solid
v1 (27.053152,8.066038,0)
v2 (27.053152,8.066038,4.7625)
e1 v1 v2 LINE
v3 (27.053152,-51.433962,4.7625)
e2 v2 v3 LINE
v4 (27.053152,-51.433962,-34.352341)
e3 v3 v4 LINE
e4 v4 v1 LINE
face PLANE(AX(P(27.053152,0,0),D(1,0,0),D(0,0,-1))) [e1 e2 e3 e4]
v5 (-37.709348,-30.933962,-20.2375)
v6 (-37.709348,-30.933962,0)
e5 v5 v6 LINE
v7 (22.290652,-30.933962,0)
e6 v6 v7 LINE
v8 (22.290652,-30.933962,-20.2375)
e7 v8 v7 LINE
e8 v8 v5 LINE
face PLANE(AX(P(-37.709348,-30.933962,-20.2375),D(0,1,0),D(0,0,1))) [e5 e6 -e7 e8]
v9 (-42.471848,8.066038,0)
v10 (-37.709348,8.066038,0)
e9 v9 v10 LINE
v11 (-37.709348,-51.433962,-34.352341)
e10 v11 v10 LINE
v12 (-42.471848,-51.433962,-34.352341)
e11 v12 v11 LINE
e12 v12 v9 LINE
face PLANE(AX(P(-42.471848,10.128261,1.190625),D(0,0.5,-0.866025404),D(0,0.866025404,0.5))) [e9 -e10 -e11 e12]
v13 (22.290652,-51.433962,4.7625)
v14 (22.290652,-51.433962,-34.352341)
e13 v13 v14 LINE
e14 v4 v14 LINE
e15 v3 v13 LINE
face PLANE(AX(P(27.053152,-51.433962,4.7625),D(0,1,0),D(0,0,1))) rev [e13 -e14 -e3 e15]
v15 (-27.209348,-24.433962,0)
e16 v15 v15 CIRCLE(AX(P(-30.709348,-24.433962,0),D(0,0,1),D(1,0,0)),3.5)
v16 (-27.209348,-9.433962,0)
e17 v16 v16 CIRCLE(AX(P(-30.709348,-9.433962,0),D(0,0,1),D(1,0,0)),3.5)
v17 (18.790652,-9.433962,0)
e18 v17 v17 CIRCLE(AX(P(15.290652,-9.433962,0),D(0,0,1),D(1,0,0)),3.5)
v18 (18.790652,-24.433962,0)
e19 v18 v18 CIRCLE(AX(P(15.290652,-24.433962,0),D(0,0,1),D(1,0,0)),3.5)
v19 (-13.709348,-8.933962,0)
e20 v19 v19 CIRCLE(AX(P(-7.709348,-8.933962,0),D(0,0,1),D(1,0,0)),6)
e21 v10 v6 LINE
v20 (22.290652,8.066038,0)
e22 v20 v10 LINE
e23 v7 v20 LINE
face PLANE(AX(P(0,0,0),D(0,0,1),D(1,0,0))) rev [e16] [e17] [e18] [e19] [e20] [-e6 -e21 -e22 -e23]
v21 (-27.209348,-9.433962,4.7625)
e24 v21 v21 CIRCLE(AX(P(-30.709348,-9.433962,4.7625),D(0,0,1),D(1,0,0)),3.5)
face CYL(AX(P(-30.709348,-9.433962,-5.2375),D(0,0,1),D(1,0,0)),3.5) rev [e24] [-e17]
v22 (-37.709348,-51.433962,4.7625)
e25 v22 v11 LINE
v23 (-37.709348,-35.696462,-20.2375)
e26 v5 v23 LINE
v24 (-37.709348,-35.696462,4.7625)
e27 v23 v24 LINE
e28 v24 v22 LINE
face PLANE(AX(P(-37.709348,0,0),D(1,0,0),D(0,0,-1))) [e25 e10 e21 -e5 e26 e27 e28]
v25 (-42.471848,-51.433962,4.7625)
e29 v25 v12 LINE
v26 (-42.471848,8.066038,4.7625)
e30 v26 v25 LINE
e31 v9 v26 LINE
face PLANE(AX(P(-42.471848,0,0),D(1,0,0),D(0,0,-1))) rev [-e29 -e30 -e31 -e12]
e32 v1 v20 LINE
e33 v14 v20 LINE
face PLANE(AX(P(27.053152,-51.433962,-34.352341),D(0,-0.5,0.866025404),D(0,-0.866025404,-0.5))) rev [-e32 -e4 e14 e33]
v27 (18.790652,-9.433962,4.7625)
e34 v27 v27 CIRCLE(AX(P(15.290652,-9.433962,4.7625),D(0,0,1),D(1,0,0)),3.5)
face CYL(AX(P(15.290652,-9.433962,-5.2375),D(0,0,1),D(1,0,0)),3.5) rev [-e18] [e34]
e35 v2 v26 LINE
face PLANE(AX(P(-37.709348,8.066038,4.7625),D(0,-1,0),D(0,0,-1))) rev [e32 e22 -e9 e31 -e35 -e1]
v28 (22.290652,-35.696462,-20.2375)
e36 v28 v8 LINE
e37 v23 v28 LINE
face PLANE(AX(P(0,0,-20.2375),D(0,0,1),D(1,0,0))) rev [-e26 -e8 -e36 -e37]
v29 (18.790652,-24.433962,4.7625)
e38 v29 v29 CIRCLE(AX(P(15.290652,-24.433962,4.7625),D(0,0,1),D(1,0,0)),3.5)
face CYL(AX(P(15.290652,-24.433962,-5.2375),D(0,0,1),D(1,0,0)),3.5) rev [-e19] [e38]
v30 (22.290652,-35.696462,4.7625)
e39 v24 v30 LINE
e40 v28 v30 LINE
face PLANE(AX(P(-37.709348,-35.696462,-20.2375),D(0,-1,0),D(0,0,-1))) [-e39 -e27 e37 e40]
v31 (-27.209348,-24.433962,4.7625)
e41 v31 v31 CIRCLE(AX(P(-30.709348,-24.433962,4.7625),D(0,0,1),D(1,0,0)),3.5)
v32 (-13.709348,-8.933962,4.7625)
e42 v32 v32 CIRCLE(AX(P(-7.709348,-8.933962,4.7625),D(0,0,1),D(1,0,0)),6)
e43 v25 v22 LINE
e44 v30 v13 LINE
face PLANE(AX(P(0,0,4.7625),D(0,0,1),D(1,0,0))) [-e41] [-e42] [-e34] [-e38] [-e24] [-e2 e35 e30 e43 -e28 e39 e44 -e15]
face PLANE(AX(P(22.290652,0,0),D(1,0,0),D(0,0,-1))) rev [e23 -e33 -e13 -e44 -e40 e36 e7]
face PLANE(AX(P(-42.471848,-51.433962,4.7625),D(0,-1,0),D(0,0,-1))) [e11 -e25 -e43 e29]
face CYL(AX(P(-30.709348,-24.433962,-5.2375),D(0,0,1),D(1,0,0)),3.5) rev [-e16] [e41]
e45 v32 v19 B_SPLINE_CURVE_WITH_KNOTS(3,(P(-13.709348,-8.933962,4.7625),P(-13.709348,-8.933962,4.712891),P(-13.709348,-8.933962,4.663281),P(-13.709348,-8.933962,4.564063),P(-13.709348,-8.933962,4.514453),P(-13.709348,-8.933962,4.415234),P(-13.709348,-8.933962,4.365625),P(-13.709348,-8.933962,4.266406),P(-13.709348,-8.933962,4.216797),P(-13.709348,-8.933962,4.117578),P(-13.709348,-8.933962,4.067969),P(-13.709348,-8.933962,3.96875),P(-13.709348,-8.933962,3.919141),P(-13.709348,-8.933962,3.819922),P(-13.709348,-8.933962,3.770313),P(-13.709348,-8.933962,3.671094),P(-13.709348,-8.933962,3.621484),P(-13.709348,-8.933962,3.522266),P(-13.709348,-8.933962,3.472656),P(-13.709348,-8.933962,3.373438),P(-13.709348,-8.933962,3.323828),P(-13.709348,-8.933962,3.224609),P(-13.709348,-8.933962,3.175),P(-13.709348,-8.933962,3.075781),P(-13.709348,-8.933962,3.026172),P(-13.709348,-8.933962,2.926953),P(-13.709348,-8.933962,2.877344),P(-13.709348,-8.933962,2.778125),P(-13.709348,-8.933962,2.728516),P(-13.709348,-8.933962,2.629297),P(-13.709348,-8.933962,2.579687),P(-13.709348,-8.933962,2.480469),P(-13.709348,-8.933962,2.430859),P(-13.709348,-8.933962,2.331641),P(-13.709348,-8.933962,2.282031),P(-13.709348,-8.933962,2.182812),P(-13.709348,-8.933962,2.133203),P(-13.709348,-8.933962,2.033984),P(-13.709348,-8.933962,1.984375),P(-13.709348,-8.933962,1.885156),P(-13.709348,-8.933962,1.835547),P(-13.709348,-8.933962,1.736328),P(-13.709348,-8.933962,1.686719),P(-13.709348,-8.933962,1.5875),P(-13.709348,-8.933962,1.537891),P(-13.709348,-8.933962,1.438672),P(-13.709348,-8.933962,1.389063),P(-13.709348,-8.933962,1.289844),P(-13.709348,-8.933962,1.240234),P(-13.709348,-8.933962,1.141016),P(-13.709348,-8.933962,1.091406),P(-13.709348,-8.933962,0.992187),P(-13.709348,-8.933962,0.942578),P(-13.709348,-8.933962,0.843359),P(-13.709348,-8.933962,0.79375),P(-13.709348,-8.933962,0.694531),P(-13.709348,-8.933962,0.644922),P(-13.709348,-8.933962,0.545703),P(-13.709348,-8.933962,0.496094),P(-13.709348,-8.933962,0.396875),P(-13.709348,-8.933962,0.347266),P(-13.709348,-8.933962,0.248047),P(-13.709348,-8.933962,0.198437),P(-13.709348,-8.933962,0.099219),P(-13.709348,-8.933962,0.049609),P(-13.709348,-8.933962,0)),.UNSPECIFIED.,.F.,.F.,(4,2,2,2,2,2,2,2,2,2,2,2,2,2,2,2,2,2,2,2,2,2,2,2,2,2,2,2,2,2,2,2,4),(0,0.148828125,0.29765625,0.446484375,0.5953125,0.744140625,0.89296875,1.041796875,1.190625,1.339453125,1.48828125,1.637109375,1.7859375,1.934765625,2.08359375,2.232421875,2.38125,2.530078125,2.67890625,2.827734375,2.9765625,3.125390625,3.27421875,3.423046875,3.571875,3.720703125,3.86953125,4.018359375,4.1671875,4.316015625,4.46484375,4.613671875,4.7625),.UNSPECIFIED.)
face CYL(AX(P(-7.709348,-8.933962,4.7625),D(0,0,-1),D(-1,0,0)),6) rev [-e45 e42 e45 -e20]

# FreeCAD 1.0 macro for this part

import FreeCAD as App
import Part
import Sketcher
Q = App.Units.Quantity


def add_polygon(sketch, points):
    """Adds a closed chain of lines whose ends are joined by coincident constraints."""
    first, n = sketch.GeometryCount, len(points)
    for a, b in zip(points, points[1:] + points[:1]):
        sketch.addGeometry(Part.LineSegment(App.Vector(*a, 0), App.Vector(*b, 0)), False)
    for i in range(n):
        sketch.addConstraint(Sketcher.Constraint("Coincident", first + i, 2, first + (i + 1) % n, 1))

doc = App.newDocument("Part")
body = doc.addObject("PartDesign::Body", "Body")

sketch1 = body.newObject("Sketcher::SketchObject", "Sketch")
sketch1.AttachmentSupport = (doc.getObject("XY_Plane"), [""])
sketch1.MapMode = "FlatFace"
add_polygon(sketch1, [(-38, 8), (-38, -31), (22, -31), (22, 8)])
sketch1.addGeometry(Part.Circle(App.Vector(-8, -9, 0), App.Vector(0, 0, 1), 6), False)
sketch1.addConstraint([
    Sketcher.Constraint("Vertical", 0),
    Sketcher.Constraint("Horizontal", 1),
    Sketcher.Constraint("Vertical", 2),
    Sketcher.Constraint("Horizontal", 3),
    Sketcher.Constraint("Diameter", 4, 12.0),
    Sketcher.Constraint("DistanceX", 1, 1, 1, 2, 60.0),
    Sketcher.Constraint("DistanceY", 0, 2, 0, 1, 39.0),
    Sketcher.Constraint("DistanceX", 0, 2, 4, 3, 30.0),
    Sketcher.Constraint("DistanceY", 0, 2, 4, 3, 22.0),
    Sketcher.Constraint("DistanceX", 4, 3, -1, 1, 7.709348),
    Sketcher.Constraint("DistanceY", 4, 3, -1, 1, 8.933962),
])
pad1 = body.newObject("PartDesign::Pad", "Pad")
pad1.Profile = sketch1
pad1.Length = 4.7625

sketch2 = body.newObject("Sketcher::SketchObject", "Sketch001")
sketch2.AttachmentSupport = (doc.getObject("YZ_Plane"), [""])
sketch2.MapMode = "FlatFace"
sketch2.AttachmentOffset = App.Placement(App.Vector(0, 0, 22.290652), App.Rotation())
add_polygon(sketch2, [(8.1, 4.8), (-51.4, 4.8), (-51.4, -34.4), (8.1, 0)])
sketch2.addConstraint([
    Sketcher.Constraint("Horizontal", 0),
    Sketcher.Constraint("Vertical", 1),
    Sketcher.Constraint("Vertical", 3),
    Sketcher.Constraint("PointOnObject", 2, 2, -1),
    Sketcher.Constraint("Angle", 2, Q("30 deg")),
    Sketcher.Constraint("DistanceX", 0, 2, 0, 1, 59.5),
    Sketcher.Constraint("DistanceY", 3, 1, 3, 2, 4.7625),
    Sketcher.Constraint("DistanceX", 0, 2, -1, 1, 51.433962),
])
pad2 = body.newObject("PartDesign::Pad", "Pad001")
pad2.Profile = sketch2
pad2.Length = 4.7625

sketch3 = body.newObject("Sketcher::SketchObject", "Sketch002")
sketch3.AttachmentSupport = (doc.getObject("YZ_Plane"), [""])
sketch3.MapMode = "FlatFace"
sketch3.AttachmentOffset = App.Placement(App.Vector(0, 0, -37.709348), App.Rotation())
add_polygon(sketch3, [(8.1, 4.8), (-51.4, 4.8), (-51.4, -34.4), (8.1, 0)])
sketch3.addConstraint([
    Sketcher.Constraint("Horizontal", 0),
    Sketcher.Constraint("Vertical", 1),
    Sketcher.Constraint("Vertical", 3),
    Sketcher.Constraint("PointOnObject", 2, 2, -1),
    Sketcher.Constraint("Angle", 2, Q("30 deg")),
    Sketcher.Constraint("DistanceX", 0, 2, 0, 1, 59.5),
    Sketcher.Constraint("DistanceY", 3, 1, 3, 2, 4.7625),
    Sketcher.Constraint("DistanceX", 0, 2, -1, 1, 51.433962),
])
pad3 = body.newObject("PartDesign::Pad", "Pad002")
pad3.Profile = sketch3
pad3.Length = 4.7625
pad3.Reversed = True

sketch4 = body.newObject("Sketcher::SketchObject", "Sketch003")
sketch4.AttachmentSupport = (doc.getObject("XY_Plane"), [""])
sketch4.MapMode = "FlatFace"
sketch4.AttachmentOffset = App.Placement(App.Vector(0, 0, 4.7625), App.Rotation())
add_polygon(sketch4, [(-37.7, -30.9), (-37.7, -35.7), (22.3, -35.7), (22.3, -30.9)])
sketch4.addConstraint([
    Sketcher.Constraint("Vertical", 0),
    Sketcher.Constraint("Horizontal", 1),
    Sketcher.Constraint("Vertical", 2),
    Sketcher.Constraint("Horizontal", 3),
    Sketcher.Constraint("DistanceX", 1, 1, 1, 2, 60.0),
    Sketcher.Constraint("DistanceY", 0, 2, 0, 1, 4.7625),
    Sketcher.Constraint("DistanceX", 0, 2, -1, 1, 37.709348),
    Sketcher.Constraint("DistanceY", 0, 2, -1, 1, 35.696462),
])
pad4 = body.newObject("PartDesign::Pad", "Pad003")
pad4.Profile = sketch4
pad4.Length = 25
pad4.Reversed = True

sketch5 = body.newObject("Sketcher::SketchObject", "Sketch004")
sketch5.AttachmentSupport = (doc.getObject("XY_Plane"), [""])
sketch5.MapMode = "FlatFace"
sketch5.AttachmentOffset = App.Placement(App.Vector(0, 0, 4.7625), App.Rotation())
sketch5.addGeometry([
    Part.Circle(App.Vector(-30.7, -9.4, 0), App.Vector(0, 0, 1), 3.5),
    Part.Circle(App.Vector(15.3, -9.4, 0), App.Vector(0, 0, 1), 3.5),
    Part.Circle(App.Vector(15.3, -24.4, 0), App.Vector(0, 0, 1), 3.5),
    Part.Circle(App.Vector(-30.7, -24.4, 0), App.Vector(0, 0, 1), 3.5),
], False)
sketch5.addConstraint([
    Sketcher.Constraint("Equal", 0, 1),
    Sketcher.Constraint("Equal", 1, 2),
    Sketcher.Constraint("Equal", 2, 3),
    Sketcher.Constraint("Horizontal", 0, 3, 1, 3),
    Sketcher.Constraint("Horizontal", 2, 3, 3, 3),
    Sketcher.Constraint("Vertical", 1, 3, 2, 3),
    Sketcher.Constraint("Vertical", 0, 3, 3, 3),
    Sketcher.Constraint("Diameter", 0, 7.0),
    Sketcher.Constraint("DistanceX", 0, 3, 1, 3, 46.0),
    Sketcher.Constraint("DistanceY", 2, 3, 1, 3, 15.0),
    Sketcher.Constraint("DistanceX", 0, 3, -1, 1, 30.709348),
    Sketcher.Constraint("DistanceY", 0, 3, -1, 1, 9.433962),
])
pocket1 = body.newObject("PartDesign::Pocket", "Pocket")
pocket1.Profile = sketch5
pocket1.Length = 10

doc.recompute()
